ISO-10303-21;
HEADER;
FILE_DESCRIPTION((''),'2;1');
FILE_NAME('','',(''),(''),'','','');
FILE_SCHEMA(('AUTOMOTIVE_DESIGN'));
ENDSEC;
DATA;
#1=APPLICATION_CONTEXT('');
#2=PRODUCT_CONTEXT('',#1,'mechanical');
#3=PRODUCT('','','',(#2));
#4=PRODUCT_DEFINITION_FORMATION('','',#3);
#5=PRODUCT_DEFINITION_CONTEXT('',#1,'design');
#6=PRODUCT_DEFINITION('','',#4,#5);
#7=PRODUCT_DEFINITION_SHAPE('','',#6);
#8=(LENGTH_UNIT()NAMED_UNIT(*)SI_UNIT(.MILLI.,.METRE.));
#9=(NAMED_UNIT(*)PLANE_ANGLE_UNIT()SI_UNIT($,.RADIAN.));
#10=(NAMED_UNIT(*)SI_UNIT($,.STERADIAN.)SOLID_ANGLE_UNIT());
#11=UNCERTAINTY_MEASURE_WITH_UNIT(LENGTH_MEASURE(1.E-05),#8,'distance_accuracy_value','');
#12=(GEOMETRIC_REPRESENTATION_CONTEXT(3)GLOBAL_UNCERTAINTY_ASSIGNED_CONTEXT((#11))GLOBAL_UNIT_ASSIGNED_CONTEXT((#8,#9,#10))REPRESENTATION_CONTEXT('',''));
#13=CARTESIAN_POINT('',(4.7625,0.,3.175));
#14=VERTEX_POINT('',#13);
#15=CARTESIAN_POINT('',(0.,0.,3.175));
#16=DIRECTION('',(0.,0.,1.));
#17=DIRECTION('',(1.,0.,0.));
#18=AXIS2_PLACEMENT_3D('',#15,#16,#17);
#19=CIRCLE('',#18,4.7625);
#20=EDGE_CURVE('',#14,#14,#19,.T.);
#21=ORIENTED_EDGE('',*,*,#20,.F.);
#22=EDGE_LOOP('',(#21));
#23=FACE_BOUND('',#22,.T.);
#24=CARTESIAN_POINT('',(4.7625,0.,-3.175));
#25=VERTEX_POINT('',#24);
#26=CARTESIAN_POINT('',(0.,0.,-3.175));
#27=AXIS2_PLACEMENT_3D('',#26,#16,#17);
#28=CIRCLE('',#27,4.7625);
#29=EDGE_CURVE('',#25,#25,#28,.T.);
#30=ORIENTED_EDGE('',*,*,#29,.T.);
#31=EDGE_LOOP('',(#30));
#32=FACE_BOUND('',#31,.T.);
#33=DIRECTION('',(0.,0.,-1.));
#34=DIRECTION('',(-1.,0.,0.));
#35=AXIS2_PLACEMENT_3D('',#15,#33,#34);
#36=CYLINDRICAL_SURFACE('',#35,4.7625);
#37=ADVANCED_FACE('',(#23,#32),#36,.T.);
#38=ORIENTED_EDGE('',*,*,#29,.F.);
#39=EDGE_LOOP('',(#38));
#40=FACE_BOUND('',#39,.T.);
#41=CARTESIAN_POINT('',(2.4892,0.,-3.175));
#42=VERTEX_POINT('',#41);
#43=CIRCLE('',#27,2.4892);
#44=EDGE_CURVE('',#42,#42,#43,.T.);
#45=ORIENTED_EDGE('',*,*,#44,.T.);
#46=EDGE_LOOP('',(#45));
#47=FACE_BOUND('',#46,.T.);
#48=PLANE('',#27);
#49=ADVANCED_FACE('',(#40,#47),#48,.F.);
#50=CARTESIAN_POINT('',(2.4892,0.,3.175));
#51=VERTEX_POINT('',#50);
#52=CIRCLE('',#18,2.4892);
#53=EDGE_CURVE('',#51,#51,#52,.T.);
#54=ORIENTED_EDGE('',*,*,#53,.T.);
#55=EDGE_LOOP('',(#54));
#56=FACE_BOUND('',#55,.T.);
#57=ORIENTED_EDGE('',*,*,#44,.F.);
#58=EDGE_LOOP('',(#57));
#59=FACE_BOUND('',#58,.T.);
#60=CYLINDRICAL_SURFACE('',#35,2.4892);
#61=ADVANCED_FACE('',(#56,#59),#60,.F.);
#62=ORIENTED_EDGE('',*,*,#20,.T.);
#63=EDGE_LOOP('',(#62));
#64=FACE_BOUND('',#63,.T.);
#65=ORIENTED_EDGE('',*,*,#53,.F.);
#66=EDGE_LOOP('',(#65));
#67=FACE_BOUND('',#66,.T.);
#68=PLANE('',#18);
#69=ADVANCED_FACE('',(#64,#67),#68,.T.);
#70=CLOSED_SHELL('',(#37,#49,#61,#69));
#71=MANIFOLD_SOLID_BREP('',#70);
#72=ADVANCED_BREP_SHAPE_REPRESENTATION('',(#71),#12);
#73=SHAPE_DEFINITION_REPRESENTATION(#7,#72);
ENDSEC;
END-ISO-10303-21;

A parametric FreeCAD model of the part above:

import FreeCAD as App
import Part
import Sketcher

V = App.Vector
Q = App.Units.Quantity

doc = App.newDocument("Part")
params = doc.addObject("Spreadsheet::Sheet", "Params")
for row, (alias, value) in enumerate([
    ("sketch1_diameter", "0.375 in"),
    ("sketch1_diameter2", "0.196 in"),
    ("pad1_length", "0.25 in"),
], start=1):
    params.set(f"A{row}", alias)
    params.set(f"B{row}", "=" + value)
    params.setAlias(f"B{row}", alias)

body = doc.addObject("PartDesign::Body", "Body")

# Sketch on XY plane
sketch1 = doc.addObject("Sketcher::SketchObject", "Sketch")
body.addObject(sketch1)
sketch1.AttachmentSupport = (doc.XY_Plane, [""])
sketch1.MapMode = "FlatFace"
sketch1.addGeometry([
    Part.Circle(V(0, 0, 0), V(0, 0, 1), 4.8),
    Part.Circle(V(0, 0, 0), V(0, 0, 1), 2.5),
], False)
sketch1.addConstraint([
    Sketcher.Constraint("Coincident", 0, 3, -1, 1),
    Sketcher.Constraint("Coincident", 1, 3, -1, 1),
    Sketcher.Constraint("Diameter", 0, Q("0.375 in")),
    Sketcher.Constraint("Diameter", 1, Q("0.196 in")),
])
sketch1.setExpression("Constraints[2]", "Params.sketch1_diameter")
sketch1.setExpression("Constraints[3]", "Params.sketch1_diameter2")
pad1 = doc.addObject("PartDesign::Pad", "Pad")
body.addObject(pad1)
pad1.Profile = sketch1
pad1.setExpression("Length", "Params.pad1_length")
pad1.Midplane = True

doc.recompute()
